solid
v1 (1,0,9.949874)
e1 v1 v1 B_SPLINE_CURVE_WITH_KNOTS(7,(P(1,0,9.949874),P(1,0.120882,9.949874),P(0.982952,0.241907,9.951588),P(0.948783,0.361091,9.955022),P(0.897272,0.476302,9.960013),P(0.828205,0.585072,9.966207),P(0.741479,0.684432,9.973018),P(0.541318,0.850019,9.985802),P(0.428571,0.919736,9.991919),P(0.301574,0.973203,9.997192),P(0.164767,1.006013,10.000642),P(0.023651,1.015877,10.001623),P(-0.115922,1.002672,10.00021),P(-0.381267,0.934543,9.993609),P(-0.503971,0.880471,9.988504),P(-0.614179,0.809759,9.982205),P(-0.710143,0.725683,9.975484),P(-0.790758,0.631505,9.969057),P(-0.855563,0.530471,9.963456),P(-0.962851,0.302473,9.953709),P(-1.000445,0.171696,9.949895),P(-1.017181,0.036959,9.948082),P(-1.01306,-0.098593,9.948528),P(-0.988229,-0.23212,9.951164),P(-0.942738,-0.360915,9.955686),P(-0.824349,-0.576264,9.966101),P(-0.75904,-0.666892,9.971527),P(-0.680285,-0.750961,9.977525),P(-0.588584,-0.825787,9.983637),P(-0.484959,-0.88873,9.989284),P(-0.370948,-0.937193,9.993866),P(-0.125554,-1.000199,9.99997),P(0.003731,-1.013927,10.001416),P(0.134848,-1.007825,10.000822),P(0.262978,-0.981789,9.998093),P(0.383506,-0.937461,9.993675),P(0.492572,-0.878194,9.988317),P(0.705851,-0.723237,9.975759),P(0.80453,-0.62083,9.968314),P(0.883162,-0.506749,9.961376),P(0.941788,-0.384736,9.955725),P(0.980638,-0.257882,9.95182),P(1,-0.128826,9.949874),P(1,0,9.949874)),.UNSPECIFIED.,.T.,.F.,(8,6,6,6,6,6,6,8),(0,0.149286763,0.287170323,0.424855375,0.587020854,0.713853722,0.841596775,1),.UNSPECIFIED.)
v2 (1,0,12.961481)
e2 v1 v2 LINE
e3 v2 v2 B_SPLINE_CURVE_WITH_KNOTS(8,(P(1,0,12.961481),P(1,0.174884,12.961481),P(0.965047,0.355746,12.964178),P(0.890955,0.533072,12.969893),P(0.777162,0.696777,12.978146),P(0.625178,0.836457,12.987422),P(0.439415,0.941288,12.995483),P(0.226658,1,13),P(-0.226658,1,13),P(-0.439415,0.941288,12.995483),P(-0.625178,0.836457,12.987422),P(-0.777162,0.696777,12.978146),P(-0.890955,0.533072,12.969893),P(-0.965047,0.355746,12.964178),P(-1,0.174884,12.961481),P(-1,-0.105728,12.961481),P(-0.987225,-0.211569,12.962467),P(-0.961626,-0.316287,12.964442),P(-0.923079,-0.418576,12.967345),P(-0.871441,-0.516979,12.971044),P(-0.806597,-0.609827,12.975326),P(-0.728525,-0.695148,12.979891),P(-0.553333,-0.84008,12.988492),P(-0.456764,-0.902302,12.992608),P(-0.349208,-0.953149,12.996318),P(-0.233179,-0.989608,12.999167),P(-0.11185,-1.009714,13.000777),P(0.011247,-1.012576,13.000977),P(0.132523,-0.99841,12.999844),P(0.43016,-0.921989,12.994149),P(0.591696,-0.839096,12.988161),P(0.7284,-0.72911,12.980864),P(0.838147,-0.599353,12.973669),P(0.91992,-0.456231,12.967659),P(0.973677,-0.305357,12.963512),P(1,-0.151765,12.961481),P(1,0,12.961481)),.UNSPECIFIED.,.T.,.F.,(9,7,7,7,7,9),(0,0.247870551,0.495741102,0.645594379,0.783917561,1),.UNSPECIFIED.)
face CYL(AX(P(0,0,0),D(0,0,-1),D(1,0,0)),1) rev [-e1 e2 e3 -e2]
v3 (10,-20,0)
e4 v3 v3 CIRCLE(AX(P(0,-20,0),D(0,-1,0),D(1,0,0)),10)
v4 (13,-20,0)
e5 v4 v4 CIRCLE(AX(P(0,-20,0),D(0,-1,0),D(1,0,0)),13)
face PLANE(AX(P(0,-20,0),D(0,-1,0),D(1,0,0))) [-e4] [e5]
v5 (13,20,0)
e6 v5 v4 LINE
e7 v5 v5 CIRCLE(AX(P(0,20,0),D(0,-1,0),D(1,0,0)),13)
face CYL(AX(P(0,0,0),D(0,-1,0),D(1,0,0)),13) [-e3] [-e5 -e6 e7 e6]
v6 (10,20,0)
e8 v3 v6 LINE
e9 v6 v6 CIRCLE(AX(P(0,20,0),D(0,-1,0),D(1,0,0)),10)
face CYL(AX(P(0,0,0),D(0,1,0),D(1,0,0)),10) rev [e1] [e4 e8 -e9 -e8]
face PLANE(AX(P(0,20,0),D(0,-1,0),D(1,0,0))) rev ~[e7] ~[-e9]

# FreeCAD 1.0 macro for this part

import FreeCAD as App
import Part
import Sketcher
from FreeCAD import Vector
Q = App.Units.Quantity

doc = App.newDocument("Part")
params = doc.addObject("Spreadsheet::Sheet", "Params")
for row, (alias, value) in enumerate([
    ("sketch1_diameter", "26 mm"),
    ("sketch1_diameter2", "20 mm"),
    ("pad1_length", "40 mm"),
    ("sketch2_diameter", "2 mm"),
], start=1):
    params.set(f"A{row}", alias)
    params.set(f"B{row}", "=" + value)
    params.setAlias(f"B{row}", alias)

body = doc.addObject("PartDesign::Body", "Body")

# Sketch on XZ plane
sketch1 = body.newObject("Sketcher::SketchObject", "Sketch")
sketch1.AttachmentSupport = (doc.getObject("XZ_Plane"), [""])
sketch1.MapMode = "FlatFace"
sketch1.addGeometry([
    Part.Circle(Vector(0, 0, 0), Vector(0, 0, 1), 13),
    Part.Circle(Vector(0, 0, 0), Vector(0, 0, 1), 10),
], False)
sketch1.addConstraint([
    Sketcher.Constraint("Coincident", 0, 3, -1, 1),
    Sketcher.Constraint("Coincident", 1, 3, -1, 1),
    Sketcher.Constraint("Diameter", 0, Q("26 mm")),
    Sketcher.Constraint("Diameter", 1, Q("20 mm")),
])
sketch1.setExpression("Constraints[2]", "Params.sketch1_diameter")
sketch1.setExpression("Constraints[3]", "Params.sketch1_diameter2")
pad1 = body.newObject("PartDesign::Pad", "Pad")
pad1.Profile = sketch1
pad1.setExpression("Length", "Params.pad1_length")
pad1.Midplane = True

# Sketch on XY plane
sketch2 = body.newObject("Sketcher::SketchObject", "Sketch001")
sketch2.AttachmentSupport = (doc.getObject("XY_Plane"), [""])
sketch2.MapMode = "FlatFace"
sketch2.addGeometry(Part.Circle(Vector(0, 0, 0), Vector(0, 0, 1), 1), False)
sketch2.addConstraint([
    Sketcher.Constraint("Coincident", 0, 3, -1, 1),
    Sketcher.Constraint("Diameter", 0, Q("2 mm")),
])
sketch2.setExpression("Constraints[1]", "Params.sketch2_diameter")
pocket1 = body.newObject("PartDesign::Pocket", "Pocket")
pocket1.Profile = sketch2
pocket1.Type = "ThroughAll"
pocket1.Reversed = True

doc.recompute()
